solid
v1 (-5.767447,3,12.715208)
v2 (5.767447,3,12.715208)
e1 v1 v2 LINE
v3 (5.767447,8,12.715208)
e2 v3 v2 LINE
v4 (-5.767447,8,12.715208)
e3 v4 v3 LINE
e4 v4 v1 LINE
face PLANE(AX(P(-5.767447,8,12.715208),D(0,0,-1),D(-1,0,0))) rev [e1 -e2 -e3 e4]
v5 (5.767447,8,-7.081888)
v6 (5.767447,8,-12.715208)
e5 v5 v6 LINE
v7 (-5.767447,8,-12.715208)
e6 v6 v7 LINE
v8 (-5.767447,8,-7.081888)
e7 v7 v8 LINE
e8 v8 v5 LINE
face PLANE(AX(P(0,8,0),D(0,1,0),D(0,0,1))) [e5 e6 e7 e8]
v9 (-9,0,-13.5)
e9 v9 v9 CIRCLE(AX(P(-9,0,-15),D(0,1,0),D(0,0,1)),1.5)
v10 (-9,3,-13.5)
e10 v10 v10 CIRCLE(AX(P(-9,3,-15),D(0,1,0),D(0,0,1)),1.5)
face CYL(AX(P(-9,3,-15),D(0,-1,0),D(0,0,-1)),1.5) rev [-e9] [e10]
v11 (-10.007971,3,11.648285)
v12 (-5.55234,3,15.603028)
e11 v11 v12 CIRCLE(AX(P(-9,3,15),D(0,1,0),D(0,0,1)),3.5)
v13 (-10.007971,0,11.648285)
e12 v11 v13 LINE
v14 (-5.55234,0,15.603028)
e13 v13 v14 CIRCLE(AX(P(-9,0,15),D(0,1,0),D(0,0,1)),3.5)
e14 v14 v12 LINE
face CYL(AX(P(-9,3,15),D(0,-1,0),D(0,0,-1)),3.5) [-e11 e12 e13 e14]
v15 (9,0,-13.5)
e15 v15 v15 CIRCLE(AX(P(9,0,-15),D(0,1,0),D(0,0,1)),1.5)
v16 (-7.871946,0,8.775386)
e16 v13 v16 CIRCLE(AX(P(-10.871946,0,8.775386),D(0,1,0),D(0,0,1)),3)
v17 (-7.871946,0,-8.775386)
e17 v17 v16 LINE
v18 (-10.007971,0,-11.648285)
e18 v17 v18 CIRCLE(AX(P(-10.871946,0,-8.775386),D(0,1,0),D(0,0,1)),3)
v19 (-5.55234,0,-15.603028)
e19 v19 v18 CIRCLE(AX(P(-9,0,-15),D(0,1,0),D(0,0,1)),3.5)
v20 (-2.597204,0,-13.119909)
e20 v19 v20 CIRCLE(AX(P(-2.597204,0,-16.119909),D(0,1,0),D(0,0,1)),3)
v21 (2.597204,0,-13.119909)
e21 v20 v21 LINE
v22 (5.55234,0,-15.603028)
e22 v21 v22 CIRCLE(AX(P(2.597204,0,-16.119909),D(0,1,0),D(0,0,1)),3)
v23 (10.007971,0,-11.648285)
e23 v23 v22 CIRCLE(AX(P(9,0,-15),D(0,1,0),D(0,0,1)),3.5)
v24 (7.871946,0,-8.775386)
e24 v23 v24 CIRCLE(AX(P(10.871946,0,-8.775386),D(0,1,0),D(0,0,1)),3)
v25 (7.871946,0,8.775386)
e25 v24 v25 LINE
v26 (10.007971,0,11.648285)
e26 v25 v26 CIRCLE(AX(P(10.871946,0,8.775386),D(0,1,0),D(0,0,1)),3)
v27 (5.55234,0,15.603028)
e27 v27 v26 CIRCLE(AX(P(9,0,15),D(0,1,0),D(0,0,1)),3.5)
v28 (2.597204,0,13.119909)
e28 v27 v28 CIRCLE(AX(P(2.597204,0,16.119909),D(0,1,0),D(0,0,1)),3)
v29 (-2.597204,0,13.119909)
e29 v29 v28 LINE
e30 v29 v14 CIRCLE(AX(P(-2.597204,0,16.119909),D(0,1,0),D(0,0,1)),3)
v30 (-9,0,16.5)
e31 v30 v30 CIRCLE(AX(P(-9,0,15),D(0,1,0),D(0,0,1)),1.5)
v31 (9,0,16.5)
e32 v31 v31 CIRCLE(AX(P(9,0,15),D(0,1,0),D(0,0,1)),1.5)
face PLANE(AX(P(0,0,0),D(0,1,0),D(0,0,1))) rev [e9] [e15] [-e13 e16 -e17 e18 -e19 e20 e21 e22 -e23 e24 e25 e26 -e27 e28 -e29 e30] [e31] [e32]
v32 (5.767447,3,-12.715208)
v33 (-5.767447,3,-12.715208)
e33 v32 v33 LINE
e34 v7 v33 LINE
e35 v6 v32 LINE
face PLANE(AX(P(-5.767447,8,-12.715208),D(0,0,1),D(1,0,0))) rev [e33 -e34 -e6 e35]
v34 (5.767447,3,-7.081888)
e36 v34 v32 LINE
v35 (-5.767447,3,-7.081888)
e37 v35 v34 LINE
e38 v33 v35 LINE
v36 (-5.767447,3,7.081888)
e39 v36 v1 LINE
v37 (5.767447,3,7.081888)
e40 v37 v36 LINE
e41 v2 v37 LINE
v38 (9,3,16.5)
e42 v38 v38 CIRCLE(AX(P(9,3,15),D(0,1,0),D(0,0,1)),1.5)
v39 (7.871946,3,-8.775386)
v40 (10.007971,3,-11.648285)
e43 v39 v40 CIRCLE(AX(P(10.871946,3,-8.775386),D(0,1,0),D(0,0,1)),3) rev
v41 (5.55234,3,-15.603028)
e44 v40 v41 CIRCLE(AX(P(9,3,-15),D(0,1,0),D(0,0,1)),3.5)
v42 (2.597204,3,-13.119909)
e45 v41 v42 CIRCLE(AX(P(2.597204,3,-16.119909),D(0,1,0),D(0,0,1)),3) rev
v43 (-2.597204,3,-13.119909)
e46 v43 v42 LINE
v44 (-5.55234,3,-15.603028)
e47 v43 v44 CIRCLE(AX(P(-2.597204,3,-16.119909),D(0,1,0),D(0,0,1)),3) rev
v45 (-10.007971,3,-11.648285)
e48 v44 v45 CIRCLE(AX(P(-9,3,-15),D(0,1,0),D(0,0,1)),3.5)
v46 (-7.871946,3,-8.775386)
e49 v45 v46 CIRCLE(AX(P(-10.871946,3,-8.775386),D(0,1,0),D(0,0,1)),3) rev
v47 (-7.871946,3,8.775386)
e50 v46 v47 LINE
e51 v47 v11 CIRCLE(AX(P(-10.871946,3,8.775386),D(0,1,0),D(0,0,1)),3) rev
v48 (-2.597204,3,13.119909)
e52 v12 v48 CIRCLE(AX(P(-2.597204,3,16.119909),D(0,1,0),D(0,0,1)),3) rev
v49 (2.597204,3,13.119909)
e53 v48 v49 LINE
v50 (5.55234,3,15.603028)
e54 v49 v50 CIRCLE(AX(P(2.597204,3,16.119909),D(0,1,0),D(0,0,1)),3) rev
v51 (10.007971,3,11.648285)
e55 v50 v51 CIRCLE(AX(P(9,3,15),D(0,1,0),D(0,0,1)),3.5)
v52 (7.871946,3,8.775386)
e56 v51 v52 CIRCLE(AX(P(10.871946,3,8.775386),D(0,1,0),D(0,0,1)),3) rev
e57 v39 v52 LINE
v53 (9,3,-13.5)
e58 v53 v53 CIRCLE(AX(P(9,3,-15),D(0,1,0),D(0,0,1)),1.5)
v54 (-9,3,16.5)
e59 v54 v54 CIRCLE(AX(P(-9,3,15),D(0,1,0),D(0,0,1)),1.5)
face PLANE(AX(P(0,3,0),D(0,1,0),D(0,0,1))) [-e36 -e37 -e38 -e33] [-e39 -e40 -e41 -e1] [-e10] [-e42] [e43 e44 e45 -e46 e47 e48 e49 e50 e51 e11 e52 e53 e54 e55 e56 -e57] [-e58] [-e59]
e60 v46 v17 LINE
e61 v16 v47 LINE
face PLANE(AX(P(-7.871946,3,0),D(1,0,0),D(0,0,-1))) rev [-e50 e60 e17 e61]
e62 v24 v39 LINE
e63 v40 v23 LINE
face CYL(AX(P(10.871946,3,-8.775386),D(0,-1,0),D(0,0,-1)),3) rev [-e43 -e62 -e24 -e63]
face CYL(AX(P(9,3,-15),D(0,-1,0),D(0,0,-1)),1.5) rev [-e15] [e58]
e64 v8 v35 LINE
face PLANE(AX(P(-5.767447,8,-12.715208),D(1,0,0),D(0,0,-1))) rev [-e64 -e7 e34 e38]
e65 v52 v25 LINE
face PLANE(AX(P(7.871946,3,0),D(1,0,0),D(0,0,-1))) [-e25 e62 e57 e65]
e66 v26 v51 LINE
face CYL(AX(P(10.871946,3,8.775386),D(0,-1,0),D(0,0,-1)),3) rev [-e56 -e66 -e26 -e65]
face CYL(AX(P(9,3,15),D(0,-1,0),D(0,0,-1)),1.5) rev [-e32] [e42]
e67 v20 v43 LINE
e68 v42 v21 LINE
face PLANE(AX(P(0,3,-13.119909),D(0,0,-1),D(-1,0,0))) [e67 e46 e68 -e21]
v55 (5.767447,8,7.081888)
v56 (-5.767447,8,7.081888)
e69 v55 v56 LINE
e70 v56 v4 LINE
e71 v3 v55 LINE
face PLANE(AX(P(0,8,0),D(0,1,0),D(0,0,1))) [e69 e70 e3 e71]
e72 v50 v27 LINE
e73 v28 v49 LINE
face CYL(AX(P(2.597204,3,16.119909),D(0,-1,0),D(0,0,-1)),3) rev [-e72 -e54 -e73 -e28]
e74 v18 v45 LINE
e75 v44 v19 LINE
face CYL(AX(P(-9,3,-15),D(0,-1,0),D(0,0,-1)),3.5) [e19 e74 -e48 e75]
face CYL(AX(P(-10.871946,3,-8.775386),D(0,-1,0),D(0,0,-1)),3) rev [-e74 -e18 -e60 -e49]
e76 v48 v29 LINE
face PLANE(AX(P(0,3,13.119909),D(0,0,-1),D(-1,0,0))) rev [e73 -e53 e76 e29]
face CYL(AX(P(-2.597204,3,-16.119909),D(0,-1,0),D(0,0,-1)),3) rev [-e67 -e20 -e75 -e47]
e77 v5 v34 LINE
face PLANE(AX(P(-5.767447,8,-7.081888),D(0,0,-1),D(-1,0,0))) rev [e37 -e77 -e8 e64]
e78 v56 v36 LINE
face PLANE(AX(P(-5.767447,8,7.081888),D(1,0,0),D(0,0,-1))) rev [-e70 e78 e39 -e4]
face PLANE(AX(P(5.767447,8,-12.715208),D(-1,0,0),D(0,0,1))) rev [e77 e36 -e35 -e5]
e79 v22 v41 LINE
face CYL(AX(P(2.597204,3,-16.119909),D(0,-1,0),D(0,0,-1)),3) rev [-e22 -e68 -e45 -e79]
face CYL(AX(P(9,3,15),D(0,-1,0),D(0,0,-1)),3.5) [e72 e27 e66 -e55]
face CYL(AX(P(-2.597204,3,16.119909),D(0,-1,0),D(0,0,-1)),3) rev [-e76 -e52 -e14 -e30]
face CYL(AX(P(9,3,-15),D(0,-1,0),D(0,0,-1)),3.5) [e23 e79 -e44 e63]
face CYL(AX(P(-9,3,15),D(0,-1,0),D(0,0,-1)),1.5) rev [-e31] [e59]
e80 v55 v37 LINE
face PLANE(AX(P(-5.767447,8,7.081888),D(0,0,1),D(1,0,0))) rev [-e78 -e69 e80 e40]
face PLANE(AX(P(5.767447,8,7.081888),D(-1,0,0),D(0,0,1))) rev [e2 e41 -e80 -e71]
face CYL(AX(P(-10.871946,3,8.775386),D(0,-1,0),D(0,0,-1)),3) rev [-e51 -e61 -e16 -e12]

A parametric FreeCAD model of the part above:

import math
import FreeCAD as App
import Part
import Sketcher

V = App.Vector
Q = App.Units.Quantity


def edges_at(feature, points):
    """Names of the edges that pass closest to the given points."""
    edges = feature.Shape.Edges
    near = lambda p: min(range(len(edges)), key=lambda i: edges[i].distToShape(Part.Vertex(*p))[0])
    return sorted({f"Edge{near(p) + 1}" for p in points})

doc = App.newDocument("Part")
body = doc.addObject("PartDesign::Body", "Body")

sketch1 = body.newObject("Sketcher::SketchObject", "Sketch")
sketch1.AttachmentSupport = (doc.getObject("XZ_Plane"), [""])
sketch1.MapMode = "FlatFace"
sketch1.addGeometry([
    Part.ArcOfCircle(Part.Circle(V(9, -15, 0), V(0, 0, 1), 3.5), math.radians(148), math.radians(469)),
    Part.LineSegment(V(6, -13.1, 0), V(-6, -13.1, 0)),
    Part.ArcOfCircle(Part.Circle(V(-9, -15, 0), V(0, 0, 1), 3.5), math.radians(71), math.radians(392)),
    Part.LineSegment(V(-7.9, -11.7, 0), V(-7.9, 11.7, 0)),
    Part.ArcOfCircle(Part.Circle(V(-9, 15, 0), V(0, 0, 1), 3.5), math.radians(-32), math.radians(289)),
    Part.LineSegment(V(-6, 13.1, 0), V(6, 13.1, 0)),
    Part.ArcOfCircle(Part.Circle(V(9, 15, 0), V(0, 0, 1), 3.5), math.radians(-109), math.radians(212)),
    Part.LineSegment(V(7.9, 11.7, 0), V(7.9, -11.7, 0)),
    Part.Circle(V(9, -15, 0), V(0, 0, 1), 1.5),
    Part.Circle(V(-9, -15, 0), V(0, 0, 1), 1.5),
    Part.Circle(V(-9, 15, 0), V(0, 0, 1), 1.5),
    Part.Circle(V(9, 15, 0), V(0, 0, 1), 1.5),
], False)
sketch1.addConstraint([
    Sketcher.Constraint("Coincident", 0, 1, 1, 1),
    Sketcher.Constraint("Coincident", 1, 2, 2, 2),
    Sketcher.Constraint("Coincident", 2, 1, 3, 1),
    Sketcher.Constraint("Coincident", 3, 2, 4, 2),
    Sketcher.Constraint("Coincident", 4, 1, 5, 1),
    Sketcher.Constraint("Coincident", 5, 2, 6, 2),
    Sketcher.Constraint("Coincident", 6, 1, 7, 1),
    Sketcher.Constraint("Coincident", 7, 2, 0, 2),
    Sketcher.Constraint("Horizontal", 1),
    Sketcher.Constraint("Vertical", 3),
    Sketcher.Constraint("Horizontal", 5),
    Sketcher.Constraint("Vertical", 7),
    Sketcher.Constraint("Coincident", 8, 3, 0, 3),
    Sketcher.Constraint("Coincident", 9, 3, 2, 3),
    Sketcher.Constraint("Coincident", 10, 3, 4, 3),
    Sketcher.Constraint("Coincident", 11, 3, 6, 3),
    Sketcher.Constraint("Equal", 0, 2),
    Sketcher.Constraint("Equal", 2, 4),
    Sketcher.Constraint("Equal", 4, 6),
    Sketcher.Constraint("Equal", 8, 9),
    Sketcher.Constraint("Equal", 9, 10),
    Sketcher.Constraint("Equal", 10, 11),
    Sketcher.Constraint("Symmetric", 0, 3, 4, 3, -1, 1),
    Sketcher.Constraint("Symmetric", 2, 3, 6, 3, -1, 1),
    Sketcher.Constraint("Symmetric", 0, 3, 2, 3, -2),
    Sketcher.Constraint("Horizontal", 3, 2, 6, 1),
    Sketcher.Constraint("Vertical", 1, 2, 4, 1),
    Sketcher.Constraint("Diameter", 8, Q("3 mm")),
    Sketcher.Constraint("Radius", 0, Q("3.5 mm")),
    Sketcher.Constraint("DistanceX", -1, 1, 0, 3, Q("9 mm")),
    Sketcher.Constraint("DistanceY", 0, 3, -1, 1, Q("15 mm")),
    Sketcher.Constraint("DistanceY", 3, 1, 3, 2, Q("23.37354 mm")),
    Sketcher.Constraint("DistanceX", 1, 2, 1, 1, Q("12.095676 mm")),
])
pad1 = body.newObject("PartDesign::Pad", "Pad")
pad1.Profile = sketch1
pad1.Length = 3
pad1.Reversed = True
doc.recompute()

fillet = body.newObject("PartDesign::Fillet", "Fillet")
fillet.Base = (pad1, edges_at(pad1, [
    (-6.048, 1.5, -13.12),
    (6.048, 1.5, -13.12),
    (7.872, 1.5, -11.687),
    (7.872, 1.5, 11.687),
    (6.048, 1.5, 13.12),
    (-6.048, 1.5, 13.12),
    (-7.872, 1.5, 11.687),
    (-7.872, 1.5, -11.687),
]))
fillet.Radius = 3

sketch2 = body.newObject("Sketcher::SketchObject", "Sketch001")
sketch2.AttachmentSupport = (doc.getObject("XZ_Plane"), [""])
sketch2.MapMode = "FlatFace"
sketch2.AttachmentOffset = App.Placement(V(0, 0, -3), App.Rotation())
sketch2.addGeometry([
    Part.LineSegment(V(-6, -13, 0), V(-6, -7, 0)),
    Part.LineSegment(V(-6, -7, 0), V(6, -7, 0)),
    Part.LineSegment(V(6, -7, 0), V(6, -13, 0)),
    Part.LineSegment(V(6, -13, 0), V(-6, -13, 0)),
    Part.LineSegment(V(-6, 7, 0), V(-6, 13, 0)),
    Part.LineSegment(V(-6, 13, 0), V(6, 13, 0)),
    Part.LineSegment(V(6, 13, 0), V(6, 7, 0)),
    Part.LineSegment(V(6, 7, 0), V(-6, 7, 0)),
], False)
sketch2.addConstraint([
    Sketcher.Constraint("Coincident", 0, 2, 1, 1),
    Sketcher.Constraint("Coincident", 1, 2, 2, 1),
    Sketcher.Constraint("Coincident", 2, 2, 3, 1),
    Sketcher.Constraint("Coincident", 3, 2, 0, 1),
    Sketcher.Constraint("Coincident", 4, 2, 5, 1),
    Sketcher.Constraint("Coincident", 5, 2, 6, 1),
    Sketcher.Constraint("Coincident", 6, 2, 7, 1),
    Sketcher.Constraint("Coincident", 7, 2, 4, 1),
    Sketcher.Constraint("Vertical", 0),
    Sketcher.Constraint("Horizontal", 1),
    Sketcher.Constraint("Vertical", 2),
    Sketcher.Constraint("Horizontal", 3),
    Sketcher.Constraint("Vertical", 4),
    Sketcher.Constraint("Horizontal", 5),
    Sketcher.Constraint("Vertical", 6),
    Sketcher.Constraint("Horizontal", 7),
    Sketcher.Constraint("Symmetric", 2, 2, 4, 2, -1, 1),
    Sketcher.Constraint("Symmetric", 0, 2, 6, 2, -1, 1),
    Sketcher.Constraint("Vertical", 3, 2, 4, 2),
    Sketcher.Constraint("DistanceY", 0, 1, 0, 2, Q("5.63332 mm")),
    Sketcher.Constraint("DistanceX", 1, 1, 1, 2, Q("11.534893 mm")),
    Sketcher.Constraint("DistanceY", 0, 2, -1, 1, Q("7.081888 mm")),
])
pad2 = body.newObject("PartDesign::Pad", "Pad001")
pad2.Profile = sketch2
pad2.Length = 5
pad2.Reversed = True

doc.recompute()
